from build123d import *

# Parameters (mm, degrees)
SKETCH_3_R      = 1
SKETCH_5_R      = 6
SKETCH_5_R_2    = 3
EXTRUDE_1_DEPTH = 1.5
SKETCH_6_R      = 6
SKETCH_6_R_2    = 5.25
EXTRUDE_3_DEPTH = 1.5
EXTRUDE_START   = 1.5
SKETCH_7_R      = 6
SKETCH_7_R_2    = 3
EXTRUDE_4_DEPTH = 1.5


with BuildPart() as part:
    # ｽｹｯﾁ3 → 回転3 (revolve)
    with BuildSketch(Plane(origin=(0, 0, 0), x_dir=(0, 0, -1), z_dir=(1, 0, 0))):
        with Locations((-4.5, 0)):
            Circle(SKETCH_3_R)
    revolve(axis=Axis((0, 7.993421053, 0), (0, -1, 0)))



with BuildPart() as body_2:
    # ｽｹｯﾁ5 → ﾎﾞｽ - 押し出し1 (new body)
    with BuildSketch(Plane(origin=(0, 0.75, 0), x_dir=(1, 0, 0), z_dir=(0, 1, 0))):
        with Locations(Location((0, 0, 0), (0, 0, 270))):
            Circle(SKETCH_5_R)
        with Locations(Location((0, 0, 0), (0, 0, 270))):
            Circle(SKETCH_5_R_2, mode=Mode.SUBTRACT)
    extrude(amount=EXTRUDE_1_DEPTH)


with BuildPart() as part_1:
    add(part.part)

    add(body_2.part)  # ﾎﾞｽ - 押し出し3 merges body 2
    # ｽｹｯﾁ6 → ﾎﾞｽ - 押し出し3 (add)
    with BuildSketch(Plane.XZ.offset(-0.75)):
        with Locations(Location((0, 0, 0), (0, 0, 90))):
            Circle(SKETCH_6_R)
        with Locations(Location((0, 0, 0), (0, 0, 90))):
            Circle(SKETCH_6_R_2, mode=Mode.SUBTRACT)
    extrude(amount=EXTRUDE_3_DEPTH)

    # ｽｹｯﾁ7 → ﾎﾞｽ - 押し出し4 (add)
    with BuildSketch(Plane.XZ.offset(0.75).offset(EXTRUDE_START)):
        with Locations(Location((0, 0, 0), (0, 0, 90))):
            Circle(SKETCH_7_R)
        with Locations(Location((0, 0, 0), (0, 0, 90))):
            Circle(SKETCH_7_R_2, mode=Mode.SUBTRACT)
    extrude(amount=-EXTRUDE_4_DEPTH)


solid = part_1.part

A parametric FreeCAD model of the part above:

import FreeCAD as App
import Part
import Sketcher

V = App.Vector
Q = App.Units.Quantity

doc = App.newDocument("Part")
body = doc.addObject("PartDesign::Body", "Body")

sketch1 = doc.addObject("Sketcher::SketchObject", "Sketch")
body.addObject(sketch1)
sketch1.AttachmentSupport = (doc.YZ_Plane, [""])
sketch1.MapMode = "FlatFace"
sketch1.addGeometry(Part.Circle(V(0, 4.5, 0), V(0, 0, 1), 1), False)
sketch1.addConstraint([
    Sketcher.Constraint("PointOnObject", 0, 3, -2),
    Sketcher.Constraint("Diameter", 0, Q("2 mm")),
    Sketcher.Constraint("DistanceY", -1, 1, 0, 3, Q("4.5 mm")),
])
revolution = doc.addObject("PartDesign::Revolution", "Revolution")
body.addObject(revolution)
revolution.Profile = sketch1
revolution.ReferenceAxis = (sketch1, ["H_Axis"])
revolution.Angle = 360
body2 = doc.addObject("PartDesign::Body", "Body001")

sketch2 = doc.addObject("Sketcher::SketchObject", "Sketch001")
body2.addObject(sketch2)
sketch2.AttachmentSupport = (doc.getObject("XZ_Plane001"), [""])
sketch2.MapMode = "FlatFace"
sketch2.AttachmentOffset = App.Placement(V(0, 0, -0.75), App.Rotation())
sketch2.addGeometry([
    Part.Circle(V(0, 0, 0), V(0, 0, 1), 6),
    Part.Circle(V(0, 0, 0), V(0, 0, 1), 3),
], False)
sketch2.addConstraint([
    Sketcher.Constraint("Coincident", 0, 3, -1, 1),
    Sketcher.Constraint("Coincident", 1, 3, -1, 1),
    Sketcher.Constraint("Diameter", 0, Q("12 mm")),
    Sketcher.Constraint("Diameter", 1, Q("6 mm")),
])
pad1 = doc.addObject("PartDesign::Pad", "Pad")
body2.addObject(pad1)
pad1.Profile = sketch2
pad1.Length = 1.5
pad1.Reversed = True
doc.recompute()

boolean = doc.addObject("PartDesign::Boolean", "Boolean")
body.addObject(boolean)
boolean.Type = "Fuse"
boolean.addObjects([body2])

sketch3 = doc.addObject("Sketcher::SketchObject", "Sketch002")
body.addObject(sketch3)
sketch3.AttachmentSupport = (doc.XZ_Plane, [""])
sketch3.MapMode = "FlatFace"
sketch3.AttachmentOffset = App.Placement(V(0, 0, -0.75), App.Rotation())
sketch3.addGeometry([
    Part.Circle(V(0, 0, 0), V(0, 0, 1), 6),
    Part.Circle(V(0, 0, 0), V(0, 0, 1), 5),
], False)
sketch3.addConstraint([
    Sketcher.Constraint("Coincident", 0, 3, -1, 1),
    Sketcher.Constraint("Coincident", 1, 3, -1, 1),
    Sketcher.Constraint("Diameter", 0, Q("12 mm")),
    Sketcher.Constraint("Diameter", 1, Q("10.5 mm")),
])
pad2 = doc.addObject("PartDesign::Pad", "Pad001")
body.addObject(pad2)
pad2.Profile = sketch3
pad2.Length = 1.5

sketch4 = doc.addObject("Sketcher::SketchObject", "Sketch003")
body.addObject(sketch4)
sketch4.AttachmentSupport = (doc.XZ_Plane, [""])
sketch4.MapMode = "FlatFace"
sketch4.AttachmentOffset = App.Placement(V(0, 0, 2.25), App.Rotation())
sketch4.addGeometry([
    Part.Circle(V(0, 0, 0), V(0, 0, 1), 6),
    Part.Circle(V(0, 0, 0), V(0, 0, 1), 3),
], False)
sketch4.addConstraint([
    Sketcher.Constraint("Coincident", 0, 3, -1, 1),
    Sketcher.Constraint("Coincident", 1, 3, -1, 1),
    Sketcher.Constraint("Diameter", 0, Q("12 mm")),
    Sketcher.Constraint("Diameter", 1, Q("6 mm")),
])
pad3 = doc.addObject("PartDesign::Pad", "Pad002")
body.addObject(pad3)
pad3.Profile = sketch4
pad3.Length = 1.5
pad3.Reversed = True

doc.recompute()
